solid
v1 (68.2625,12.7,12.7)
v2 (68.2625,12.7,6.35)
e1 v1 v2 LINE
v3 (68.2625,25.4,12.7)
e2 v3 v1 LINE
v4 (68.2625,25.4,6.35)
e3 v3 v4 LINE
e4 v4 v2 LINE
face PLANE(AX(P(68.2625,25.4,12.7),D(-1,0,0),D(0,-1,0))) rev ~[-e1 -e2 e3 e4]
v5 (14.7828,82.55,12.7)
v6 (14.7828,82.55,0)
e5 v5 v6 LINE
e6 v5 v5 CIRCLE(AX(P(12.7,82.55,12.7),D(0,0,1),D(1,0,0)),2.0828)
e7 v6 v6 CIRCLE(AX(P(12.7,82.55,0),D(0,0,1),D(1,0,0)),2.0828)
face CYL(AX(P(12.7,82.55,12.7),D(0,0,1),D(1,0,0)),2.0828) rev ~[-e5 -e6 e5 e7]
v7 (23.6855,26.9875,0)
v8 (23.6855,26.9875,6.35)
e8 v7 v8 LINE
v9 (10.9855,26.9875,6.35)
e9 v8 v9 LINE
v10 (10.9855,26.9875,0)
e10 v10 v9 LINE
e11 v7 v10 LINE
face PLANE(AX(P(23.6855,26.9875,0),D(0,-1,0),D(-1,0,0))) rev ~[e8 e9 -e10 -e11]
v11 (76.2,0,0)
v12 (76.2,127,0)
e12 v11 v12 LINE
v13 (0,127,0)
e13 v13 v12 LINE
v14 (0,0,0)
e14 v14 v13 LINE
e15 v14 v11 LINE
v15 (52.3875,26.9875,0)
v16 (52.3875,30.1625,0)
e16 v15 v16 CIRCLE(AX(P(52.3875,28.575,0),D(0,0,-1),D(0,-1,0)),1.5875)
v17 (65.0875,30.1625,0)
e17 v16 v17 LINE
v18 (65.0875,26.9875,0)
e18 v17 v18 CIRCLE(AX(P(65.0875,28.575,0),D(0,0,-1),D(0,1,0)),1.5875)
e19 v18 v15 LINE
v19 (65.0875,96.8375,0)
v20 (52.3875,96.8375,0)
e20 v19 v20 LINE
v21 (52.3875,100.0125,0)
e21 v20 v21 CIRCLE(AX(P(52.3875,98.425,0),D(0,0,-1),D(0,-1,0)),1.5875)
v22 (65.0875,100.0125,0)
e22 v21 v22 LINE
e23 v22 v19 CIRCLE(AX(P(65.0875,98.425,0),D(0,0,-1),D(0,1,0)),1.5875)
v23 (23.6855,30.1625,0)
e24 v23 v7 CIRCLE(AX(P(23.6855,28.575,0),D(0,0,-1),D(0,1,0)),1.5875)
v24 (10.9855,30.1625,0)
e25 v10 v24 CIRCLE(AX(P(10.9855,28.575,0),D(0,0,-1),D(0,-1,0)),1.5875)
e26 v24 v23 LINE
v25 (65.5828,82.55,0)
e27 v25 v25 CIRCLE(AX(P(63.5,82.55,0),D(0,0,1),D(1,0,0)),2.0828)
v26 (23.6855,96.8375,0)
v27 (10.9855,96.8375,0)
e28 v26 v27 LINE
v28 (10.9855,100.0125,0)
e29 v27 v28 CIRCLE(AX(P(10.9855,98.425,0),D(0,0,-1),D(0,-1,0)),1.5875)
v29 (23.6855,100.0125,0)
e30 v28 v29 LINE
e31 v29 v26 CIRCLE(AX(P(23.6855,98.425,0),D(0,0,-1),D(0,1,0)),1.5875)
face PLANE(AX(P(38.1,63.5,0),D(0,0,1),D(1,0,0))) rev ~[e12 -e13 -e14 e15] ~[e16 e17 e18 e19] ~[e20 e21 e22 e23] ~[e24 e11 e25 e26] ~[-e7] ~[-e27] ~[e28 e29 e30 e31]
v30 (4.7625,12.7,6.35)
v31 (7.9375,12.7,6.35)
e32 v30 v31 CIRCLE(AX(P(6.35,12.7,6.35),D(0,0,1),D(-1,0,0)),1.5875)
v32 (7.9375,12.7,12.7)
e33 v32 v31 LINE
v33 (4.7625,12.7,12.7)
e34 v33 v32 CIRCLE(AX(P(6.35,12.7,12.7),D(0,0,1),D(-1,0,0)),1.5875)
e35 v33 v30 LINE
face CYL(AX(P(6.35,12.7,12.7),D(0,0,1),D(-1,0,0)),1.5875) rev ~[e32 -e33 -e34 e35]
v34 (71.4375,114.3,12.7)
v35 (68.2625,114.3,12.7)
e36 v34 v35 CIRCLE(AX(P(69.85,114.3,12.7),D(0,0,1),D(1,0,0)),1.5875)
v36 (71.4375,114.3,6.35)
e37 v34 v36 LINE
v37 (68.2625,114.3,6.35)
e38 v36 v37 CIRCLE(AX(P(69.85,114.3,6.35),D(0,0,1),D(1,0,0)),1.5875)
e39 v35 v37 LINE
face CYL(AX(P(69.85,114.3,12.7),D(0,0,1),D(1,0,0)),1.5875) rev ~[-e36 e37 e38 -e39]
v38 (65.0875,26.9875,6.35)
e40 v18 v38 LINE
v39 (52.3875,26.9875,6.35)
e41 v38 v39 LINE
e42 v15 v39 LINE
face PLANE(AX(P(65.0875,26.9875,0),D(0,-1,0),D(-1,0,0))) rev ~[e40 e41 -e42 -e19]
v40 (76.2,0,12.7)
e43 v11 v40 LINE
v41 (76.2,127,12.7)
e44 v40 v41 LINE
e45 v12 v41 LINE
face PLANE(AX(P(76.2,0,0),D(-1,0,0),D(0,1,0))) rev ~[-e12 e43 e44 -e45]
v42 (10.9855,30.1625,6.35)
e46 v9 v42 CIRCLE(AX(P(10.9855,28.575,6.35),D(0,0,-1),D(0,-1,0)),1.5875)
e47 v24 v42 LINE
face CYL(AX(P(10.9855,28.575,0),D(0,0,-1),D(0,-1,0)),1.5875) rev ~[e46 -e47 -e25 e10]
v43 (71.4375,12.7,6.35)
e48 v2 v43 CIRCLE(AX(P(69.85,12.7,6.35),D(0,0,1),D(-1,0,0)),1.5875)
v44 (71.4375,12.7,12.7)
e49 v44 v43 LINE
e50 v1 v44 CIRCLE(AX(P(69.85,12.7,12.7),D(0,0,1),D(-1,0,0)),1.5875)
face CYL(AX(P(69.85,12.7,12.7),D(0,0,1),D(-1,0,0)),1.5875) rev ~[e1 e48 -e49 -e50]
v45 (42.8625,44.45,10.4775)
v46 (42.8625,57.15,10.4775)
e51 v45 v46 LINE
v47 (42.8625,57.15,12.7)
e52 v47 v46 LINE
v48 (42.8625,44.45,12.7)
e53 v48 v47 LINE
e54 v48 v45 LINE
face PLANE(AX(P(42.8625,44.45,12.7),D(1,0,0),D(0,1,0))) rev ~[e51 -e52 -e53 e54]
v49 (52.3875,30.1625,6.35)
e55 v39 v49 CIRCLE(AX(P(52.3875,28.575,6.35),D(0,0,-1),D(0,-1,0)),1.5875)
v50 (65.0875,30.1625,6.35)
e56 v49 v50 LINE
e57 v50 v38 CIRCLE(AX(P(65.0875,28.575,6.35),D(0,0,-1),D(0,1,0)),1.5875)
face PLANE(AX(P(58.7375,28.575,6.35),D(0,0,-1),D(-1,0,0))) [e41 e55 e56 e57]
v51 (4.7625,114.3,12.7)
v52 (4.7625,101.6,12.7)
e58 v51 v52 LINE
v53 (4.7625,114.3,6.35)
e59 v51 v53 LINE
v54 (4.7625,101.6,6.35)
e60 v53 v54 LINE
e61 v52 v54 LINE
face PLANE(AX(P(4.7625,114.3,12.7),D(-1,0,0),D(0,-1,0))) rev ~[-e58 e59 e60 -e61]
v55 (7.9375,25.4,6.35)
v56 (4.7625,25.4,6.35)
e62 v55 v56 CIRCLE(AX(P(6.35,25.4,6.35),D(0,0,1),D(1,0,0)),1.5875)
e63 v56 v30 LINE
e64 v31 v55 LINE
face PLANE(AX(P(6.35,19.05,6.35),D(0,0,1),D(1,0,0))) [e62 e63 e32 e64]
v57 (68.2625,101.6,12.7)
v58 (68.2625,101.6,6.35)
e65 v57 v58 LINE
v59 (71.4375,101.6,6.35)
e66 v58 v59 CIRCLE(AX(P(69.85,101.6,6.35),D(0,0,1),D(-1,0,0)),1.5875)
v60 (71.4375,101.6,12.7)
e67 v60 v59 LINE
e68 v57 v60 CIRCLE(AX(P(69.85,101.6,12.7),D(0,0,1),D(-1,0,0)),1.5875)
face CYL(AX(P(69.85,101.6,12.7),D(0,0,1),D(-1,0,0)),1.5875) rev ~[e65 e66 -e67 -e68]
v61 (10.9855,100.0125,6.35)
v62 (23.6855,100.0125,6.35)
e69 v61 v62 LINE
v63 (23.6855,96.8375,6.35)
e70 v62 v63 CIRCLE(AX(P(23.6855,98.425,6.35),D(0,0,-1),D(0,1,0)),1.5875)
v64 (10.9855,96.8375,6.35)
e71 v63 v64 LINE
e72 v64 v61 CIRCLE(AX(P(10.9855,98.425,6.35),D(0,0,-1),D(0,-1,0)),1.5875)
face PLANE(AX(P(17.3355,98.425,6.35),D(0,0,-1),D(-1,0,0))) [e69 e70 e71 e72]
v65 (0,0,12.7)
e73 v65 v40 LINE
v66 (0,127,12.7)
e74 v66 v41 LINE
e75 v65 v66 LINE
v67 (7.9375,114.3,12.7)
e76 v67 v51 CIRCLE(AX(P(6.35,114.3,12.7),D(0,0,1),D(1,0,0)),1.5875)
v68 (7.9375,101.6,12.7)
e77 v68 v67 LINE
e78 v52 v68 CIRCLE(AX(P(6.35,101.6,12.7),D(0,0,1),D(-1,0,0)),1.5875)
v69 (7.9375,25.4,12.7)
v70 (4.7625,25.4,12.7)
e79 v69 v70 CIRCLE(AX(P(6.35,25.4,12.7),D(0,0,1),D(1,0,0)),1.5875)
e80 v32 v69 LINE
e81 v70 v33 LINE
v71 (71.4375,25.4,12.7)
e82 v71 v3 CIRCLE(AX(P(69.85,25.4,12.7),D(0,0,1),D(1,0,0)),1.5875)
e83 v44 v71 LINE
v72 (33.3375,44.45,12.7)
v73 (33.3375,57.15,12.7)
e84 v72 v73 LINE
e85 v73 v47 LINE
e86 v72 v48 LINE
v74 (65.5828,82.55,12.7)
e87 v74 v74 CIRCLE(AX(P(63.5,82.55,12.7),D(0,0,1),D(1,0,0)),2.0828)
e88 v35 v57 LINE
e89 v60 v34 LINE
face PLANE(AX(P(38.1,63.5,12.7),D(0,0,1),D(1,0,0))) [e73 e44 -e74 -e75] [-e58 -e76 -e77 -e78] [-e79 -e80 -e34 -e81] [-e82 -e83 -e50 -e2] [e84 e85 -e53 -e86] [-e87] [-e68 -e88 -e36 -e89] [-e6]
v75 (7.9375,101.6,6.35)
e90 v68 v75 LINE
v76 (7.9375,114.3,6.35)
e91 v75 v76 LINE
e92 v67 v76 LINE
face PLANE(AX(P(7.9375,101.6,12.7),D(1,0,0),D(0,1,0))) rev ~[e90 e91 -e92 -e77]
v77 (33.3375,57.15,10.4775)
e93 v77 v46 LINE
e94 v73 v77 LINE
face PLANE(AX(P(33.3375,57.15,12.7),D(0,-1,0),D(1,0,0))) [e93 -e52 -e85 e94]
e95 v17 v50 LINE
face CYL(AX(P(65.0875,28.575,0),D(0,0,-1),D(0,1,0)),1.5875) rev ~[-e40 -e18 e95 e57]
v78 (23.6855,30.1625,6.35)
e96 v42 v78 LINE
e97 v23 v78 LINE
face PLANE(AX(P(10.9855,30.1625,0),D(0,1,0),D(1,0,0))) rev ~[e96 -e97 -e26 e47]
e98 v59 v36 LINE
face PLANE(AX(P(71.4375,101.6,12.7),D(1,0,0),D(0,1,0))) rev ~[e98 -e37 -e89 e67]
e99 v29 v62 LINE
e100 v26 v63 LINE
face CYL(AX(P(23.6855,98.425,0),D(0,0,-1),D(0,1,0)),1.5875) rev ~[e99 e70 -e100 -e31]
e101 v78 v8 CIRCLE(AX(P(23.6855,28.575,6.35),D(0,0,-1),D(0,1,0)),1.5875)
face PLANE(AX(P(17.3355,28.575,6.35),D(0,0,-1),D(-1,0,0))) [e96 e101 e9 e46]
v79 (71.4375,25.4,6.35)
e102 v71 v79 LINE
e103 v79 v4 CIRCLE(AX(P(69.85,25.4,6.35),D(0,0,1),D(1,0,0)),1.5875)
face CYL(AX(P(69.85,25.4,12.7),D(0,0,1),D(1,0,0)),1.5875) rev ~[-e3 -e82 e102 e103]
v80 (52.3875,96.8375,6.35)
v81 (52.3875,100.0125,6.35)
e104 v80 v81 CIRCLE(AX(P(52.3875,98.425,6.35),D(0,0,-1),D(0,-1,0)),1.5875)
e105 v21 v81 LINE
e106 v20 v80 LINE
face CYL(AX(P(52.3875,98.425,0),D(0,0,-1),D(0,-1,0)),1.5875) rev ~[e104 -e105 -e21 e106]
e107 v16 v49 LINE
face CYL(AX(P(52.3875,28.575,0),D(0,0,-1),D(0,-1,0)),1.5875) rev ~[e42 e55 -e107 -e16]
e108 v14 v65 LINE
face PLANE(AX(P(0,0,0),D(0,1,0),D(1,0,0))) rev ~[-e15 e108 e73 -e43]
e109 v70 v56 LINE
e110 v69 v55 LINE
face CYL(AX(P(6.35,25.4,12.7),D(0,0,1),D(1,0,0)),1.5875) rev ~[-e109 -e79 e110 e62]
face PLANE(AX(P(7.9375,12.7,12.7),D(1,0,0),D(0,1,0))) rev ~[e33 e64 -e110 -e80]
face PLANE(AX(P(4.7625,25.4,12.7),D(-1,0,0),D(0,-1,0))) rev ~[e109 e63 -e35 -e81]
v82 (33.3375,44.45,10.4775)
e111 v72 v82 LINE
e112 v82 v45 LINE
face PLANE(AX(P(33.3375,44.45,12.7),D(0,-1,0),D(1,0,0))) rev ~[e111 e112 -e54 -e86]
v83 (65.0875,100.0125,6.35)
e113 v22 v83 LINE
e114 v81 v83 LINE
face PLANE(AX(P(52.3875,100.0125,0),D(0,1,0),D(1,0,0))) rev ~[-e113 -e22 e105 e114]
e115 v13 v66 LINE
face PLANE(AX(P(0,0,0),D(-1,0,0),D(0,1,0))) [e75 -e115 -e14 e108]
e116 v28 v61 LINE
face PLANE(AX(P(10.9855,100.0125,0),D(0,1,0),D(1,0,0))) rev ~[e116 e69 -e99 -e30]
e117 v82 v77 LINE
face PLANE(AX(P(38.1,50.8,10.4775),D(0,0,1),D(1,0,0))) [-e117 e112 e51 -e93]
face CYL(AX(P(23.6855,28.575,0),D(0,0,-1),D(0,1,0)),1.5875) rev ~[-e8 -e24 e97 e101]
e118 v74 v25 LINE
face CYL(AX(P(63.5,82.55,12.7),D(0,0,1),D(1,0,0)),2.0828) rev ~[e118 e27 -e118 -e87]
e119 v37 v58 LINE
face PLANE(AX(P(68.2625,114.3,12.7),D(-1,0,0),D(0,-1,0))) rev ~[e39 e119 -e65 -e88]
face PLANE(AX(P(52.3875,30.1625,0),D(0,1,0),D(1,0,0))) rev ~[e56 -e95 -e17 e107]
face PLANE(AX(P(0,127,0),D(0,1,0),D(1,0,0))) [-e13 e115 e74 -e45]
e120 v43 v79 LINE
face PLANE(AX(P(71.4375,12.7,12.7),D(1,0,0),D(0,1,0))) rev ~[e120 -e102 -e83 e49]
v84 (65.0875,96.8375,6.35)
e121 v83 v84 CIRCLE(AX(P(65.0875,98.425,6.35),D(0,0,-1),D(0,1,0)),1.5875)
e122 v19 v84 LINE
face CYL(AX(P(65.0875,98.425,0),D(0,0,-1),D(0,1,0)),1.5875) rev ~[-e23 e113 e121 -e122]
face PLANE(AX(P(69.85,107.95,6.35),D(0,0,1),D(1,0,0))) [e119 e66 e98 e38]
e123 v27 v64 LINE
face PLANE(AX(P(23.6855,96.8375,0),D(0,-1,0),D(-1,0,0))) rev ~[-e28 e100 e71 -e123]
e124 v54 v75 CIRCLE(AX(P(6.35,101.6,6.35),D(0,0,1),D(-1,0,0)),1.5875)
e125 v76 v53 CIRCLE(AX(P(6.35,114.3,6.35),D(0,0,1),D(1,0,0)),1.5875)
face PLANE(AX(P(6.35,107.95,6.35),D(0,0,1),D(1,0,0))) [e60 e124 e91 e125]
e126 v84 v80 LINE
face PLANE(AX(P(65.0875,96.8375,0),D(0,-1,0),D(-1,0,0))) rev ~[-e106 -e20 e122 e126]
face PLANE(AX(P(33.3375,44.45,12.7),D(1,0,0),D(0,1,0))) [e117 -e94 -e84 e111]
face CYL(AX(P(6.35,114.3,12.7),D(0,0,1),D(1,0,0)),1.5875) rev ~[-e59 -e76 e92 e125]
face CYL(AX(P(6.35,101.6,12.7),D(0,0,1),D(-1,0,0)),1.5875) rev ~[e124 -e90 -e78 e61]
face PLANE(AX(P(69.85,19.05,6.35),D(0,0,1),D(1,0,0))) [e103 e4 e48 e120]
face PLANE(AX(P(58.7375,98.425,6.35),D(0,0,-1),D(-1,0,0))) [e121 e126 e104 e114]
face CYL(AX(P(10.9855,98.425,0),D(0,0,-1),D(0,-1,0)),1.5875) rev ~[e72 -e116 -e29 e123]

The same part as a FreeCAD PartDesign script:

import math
import FreeCAD as App
import Part
import Sketcher
Q = App.Units.Quantity


def add_polygon(sketch, points):
    """Adds a closed chain of lines whose ends are joined by coincident constraints."""
    first, n = sketch.GeometryCount, len(points)
    for a, b in zip(points, points[1:] + points[:1]):
        sketch.addGeometry(Part.LineSegment(App.Vector(*a, 0), App.Vector(*b, 0)), False)
    for i in range(n):
        sketch.addConstraint(Sketcher.Constraint("Coincident", first + i, 2, first + (i + 1) % n, 1))

doc = App.newDocument("Part")
body = doc.addObject("PartDesign::Body", "Body")

sketch1 = body.newObject("Sketcher::SketchObject", "Sketch")
sketch1.AttachmentSupport = (doc.getObject("XY_Plane"), [""])
sketch1.MapMode = "FlatFace"
add_polygon(sketch1, [(0, 127), (0, 0), (76, 0), (76, 127)])
sketch1.addConstraint([
    Sketcher.Constraint("Vertical", 0),
    Sketcher.Constraint("Horizontal", 1),
    Sketcher.Constraint("Vertical", 2),
    Sketcher.Constraint("Horizontal", 3),
    Sketcher.Constraint("Coincident", 0, 2, -1, 1),
    Sketcher.Constraint("DistanceX", 1, 1, 1, 2, Q("3 in")),
    Sketcher.Constraint("DistanceY", 0, 2, 0, 1, Q("5 in")),
])
pad1 = body.newObject("PartDesign::Pad", "Pad")
pad1.Profile = sketch1
pad1.Length = Q("0.5 in")

sketch2 = body.newObject("Sketcher::SketchObject", "Sketch001")
sketch2.AttachmentSupport = (doc.getObject("XY_Plane"), [""])
sketch2.MapMode = "FlatFace"
sketch2.AttachmentOffset = App.Placement(App.Vector(0, 0, 0.5 * 25.4), App.Rotation())
sketch2.addGeometry([
    Part.LineSegment(App.Vector(71.4, 12.7, 0), App.Vector(71.4, 25.4, 0)),
    Part.ArcOfCircle(Part.Circle(App.Vector(69.8, 25.4, 0), App.Vector(0, 0, 1), 1.6), math.radians(0), math.radians(180)),
    Part.LineSegment(App.Vector(68.3, 25.4, 0), App.Vector(68.3, 12.7, 0)),
    Part.ArcOfCircle(Part.Circle(App.Vector(69.8, 12.7, 0), App.Vector(0, 0, 1), 1.6), math.radians(180), math.radians(360)),
    Part.LineSegment(App.Vector(7.9, 12.7, 0), App.Vector(7.9, 25.4, 0)),
    Part.ArcOfCircle(Part.Circle(App.Vector(6.3, 25.4, 0), App.Vector(0, 0, 1), 1.6), math.radians(0), math.radians(180)),
    Part.LineSegment(App.Vector(4.8, 25.4, 0), App.Vector(4.8, 12.7, 0)),
    Part.ArcOfCircle(Part.Circle(App.Vector(6.3, 12.7, 0), App.Vector(0, 0, 1), 1.6), math.radians(180), math.radians(360)),
    Part.LineSegment(App.Vector(7.9, 101.6, 0), App.Vector(7.9, 114.3, 0)),
    Part.ArcOfCircle(Part.Circle(App.Vector(6.3, 114.3, 0), App.Vector(0, 0, 1), 1.6), math.radians(0), math.radians(180)),
    Part.LineSegment(App.Vector(4.8, 114.3, 0), App.Vector(4.8, 101.6, 0)),
    Part.ArcOfCircle(Part.Circle(App.Vector(6.3, 101.6, 0), App.Vector(0, 0, 1), 1.6), math.radians(180), math.radians(360)),
    Part.LineSegment(App.Vector(71.4, 101.6, 0), App.Vector(71.4, 114.3, 0)),
    Part.ArcOfCircle(Part.Circle(App.Vector(69.8, 114.3, 0), App.Vector(0, 0, 1), 1.6), math.radians(0), math.radians(180)),
    Part.LineSegment(App.Vector(68.3, 114.3, 0), App.Vector(68.3, 101.6, 0)),
    Part.ArcOfCircle(Part.Circle(App.Vector(69.8, 101.6, 0), App.Vector(0, 0, 1), 1.6), math.radians(180), math.radians(360)),
], False)
sketch2.addConstraint([
    Sketcher.Constraint("Tangent", 0, 2, 1, 1),
    Sketcher.Constraint("Tangent", 1, 2, 2, 1),
    Sketcher.Constraint("Tangent", 2, 2, 3, 1),
    Sketcher.Constraint("Tangent", 3, 2, 0, 1),
    Sketcher.Constraint("Tangent", 4, 2, 5, 1),
    Sketcher.Constraint("Tangent", 5, 2, 6, 1),
    Sketcher.Constraint("Tangent", 6, 2, 7, 1),
    Sketcher.Constraint("Tangent", 7, 2, 4, 1),
    Sketcher.Constraint("Tangent", 8, 2, 9, 1),
    Sketcher.Constraint("Tangent", 9, 2, 10, 1),
    Sketcher.Constraint("Tangent", 10, 2, 11, 1),
    Sketcher.Constraint("Tangent", 11, 2, 8, 1),
    Sketcher.Constraint("Tangent", 12, 2, 13, 1),
    Sketcher.Constraint("Tangent", 13, 2, 14, 1),
    Sketcher.Constraint("Tangent", 14, 2, 15, 1),
    Sketcher.Constraint("Tangent", 15, 2, 12, 1),
    Sketcher.Constraint("Vertical", 0),
    Sketcher.Constraint("Vertical", 2),
    Sketcher.Constraint("Vertical", 4),
    Sketcher.Constraint("Vertical", 6),
    Sketcher.Constraint("Vertical", 8),
    Sketcher.Constraint("Vertical", 10),
    Sketcher.Constraint("Vertical", 12),
    Sketcher.Constraint("Vertical", 14),
    Sketcher.Constraint("Equal", 3, 5),
    Sketcher.Constraint("Equal", 7, 9),
    Sketcher.Constraint("Equal", 11, 13),
    Sketcher.Constraint("Horizontal", 1, 3, 5, 3),
    Sketcher.Constraint("Horizontal", 3, 3, 7, 3),
    Sketcher.Constraint("Horizontal", 9, 3, 13, 3),
    Sketcher.Constraint("Horizontal", 11, 3, 15, 3),
    Sketcher.Constraint("Vertical", 7, 3, 9, 3),
    Sketcher.Constraint("Vertical", 3, 3, 13, 3),
    Sketcher.Constraint("Equal", 6, 8),
    Sketcher.Constraint("DistanceY", 0, 1, 0, 2, Q("0.5 in")),
    Sketcher.Constraint("DistanceY", -1, 1, 1, 3, Q("1 in")),
    Sketcher.Constraint("DistanceY", -1, 1, 11, 3, Q("4 in")),
    Sketcher.Constraint("Radius", 1, Q("0.0625 in")),
    Sketcher.Constraint("DistanceX", 5, 3, 1, 3, Q("2.5 in")),
    Sketcher.Constraint("DistanceX", -1, 1, 1, 3, Q("2.75 in")),
])
pocket1 = body.newObject("PartDesign::Pocket", "Pocket")
pocket1.Profile = sketch2
pocket1.Length = Q("0.25 in")

sketch3 = body.newObject("Sketcher::SketchObject", "Sketch002")
sketch3.AttachmentSupport = (doc.getObject("XY_Plane"), [""])
sketch3.MapMode = "FlatFace"
sketch3.addGeometry([
    Part.LineSegment(App.Vector(23.7, 96.8, 0), App.Vector(11, 96.8, 0)),
    Part.ArcOfCircle(Part.Circle(App.Vector(11, 98.4, 0), App.Vector(0, 0, 1), 1.6), math.radians(90), math.radians(270)),
    Part.LineSegment(App.Vector(11, 100, 0), App.Vector(23.7, 100, 0)),
    Part.ArcOfCircle(Part.Circle(App.Vector(23.7, 98.4, 0), App.Vector(0, 0, 1), 1.6), math.radians(-90), math.radians(90)),
    Part.LineSegment(App.Vector(65.1, 96.8, 0), App.Vector(52.4, 96.8, 0)),
    Part.ArcOfCircle(Part.Circle(App.Vector(52.4, 98.4, 0), App.Vector(0, 0, 1), 1.6), math.radians(90), math.radians(270)),
    Part.LineSegment(App.Vector(52.4, 100, 0), App.Vector(65.1, 100, 0)),
    Part.ArcOfCircle(Part.Circle(App.Vector(65.1, 98.4, 0), App.Vector(0, 0, 1), 1.6), math.radians(-90), math.radians(90)),
    Part.LineSegment(App.Vector(65.1, 27, 0), App.Vector(52.4, 27, 0)),
    Part.ArcOfCircle(Part.Circle(App.Vector(52.4, 28.6, 0), App.Vector(0, 0, 1), 1.6), math.radians(90), math.radians(270)),
    Part.LineSegment(App.Vector(52.4, 30.2, 0), App.Vector(65.1, 30.2, 0)),
    Part.ArcOfCircle(Part.Circle(App.Vector(65.1, 28.6, 0), App.Vector(0, 0, 1), 1.6), math.radians(-90), math.radians(90)),
    Part.LineSegment(App.Vector(23.7, 27, 0), App.Vector(11, 27, 0)),
    Part.ArcOfCircle(Part.Circle(App.Vector(11, 28.6, 0), App.Vector(0, 0, 1), 1.6), math.radians(90), math.radians(270)),
    Part.LineSegment(App.Vector(11, 30.2, 0), App.Vector(23.7, 30.2, 0)),
    Part.ArcOfCircle(Part.Circle(App.Vector(23.7, 28.6, 0), App.Vector(0, 0, 1), 1.6), math.radians(-90), math.radians(90)),
], False)
sketch3.addConstraint([
    Sketcher.Constraint("Tangent", 0, 2, 1, 2),
    Sketcher.Constraint("Tangent", 1, 1, 2, 1),
    Sketcher.Constraint("Tangent", 2, 2, 3, 2),
    Sketcher.Constraint("Tangent", 3, 1, 0, 1),
    Sketcher.Constraint("Tangent", 4, 2, 5, 2),
    Sketcher.Constraint("Tangent", 5, 1, 6, 1),
    Sketcher.Constraint("Tangent", 6, 2, 7, 2),
    Sketcher.Constraint("Tangent", 7, 1, 4, 1),
    Sketcher.Constraint("Tangent", 8, 2, 9, 2),
    Sketcher.Constraint("Tangent", 9, 1, 10, 1),
    Sketcher.Constraint("Tangent", 10, 2, 11, 2),
    Sketcher.Constraint("Tangent", 11, 1, 8, 1),
    Sketcher.Constraint("Tangent", 12, 2, 13, 2),
    Sketcher.Constraint("Tangent", 13, 1, 14, 1),
    Sketcher.Constraint("Tangent", 14, 2, 15, 2),
    Sketcher.Constraint("Tangent", 15, 1, 12, 1),
    Sketcher.Constraint("Horizontal", 0),
    Sketcher.Constraint("Horizontal", 2),
    Sketcher.Constraint("Horizontal", 4),
    Sketcher.Constraint("Horizontal", 6),
    Sketcher.Constraint("Horizontal", 8),
    Sketcher.Constraint("Horizontal", 10),
    Sketcher.Constraint("Horizontal", 12),
    Sketcher.Constraint("Horizontal", 14),
    Sketcher.Constraint("Equal", 3, 5),
    Sketcher.Constraint("Equal", 7, 9),
    Sketcher.Constraint("Equal", 11, 13),
    Sketcher.Constraint("Horizontal", 3, 3, 5, 3),
    Sketcher.Constraint("Horizontal", 11, 3, 13, 3),
    Sketcher.Constraint("Vertical", 5, 3, 9, 3),
    Sketcher.Constraint("Vertical", 7, 3, 11, 3),
    Sketcher.Constraint("Vertical", 1, 3, 13, 3),
    Sketcher.Constraint("Vertical", 3, 3, 15, 3),
    Sketcher.Constraint("Equal", 2, 4),
    Sketcher.Constraint("DistanceX", 0, 2, 0, 1, Q("0.5 in")),
    Sketcher.Constraint("Radius", 1, Q("0.0625 in")),
    Sketcher.Constraint("DistanceX", 3, 3, 5, 3, Q("1.13 in")),
    Sketcher.Constraint("DistanceY", 9, 3, 5, 3, Q("2.75 in")),
    Sketcher.Constraint("DistanceY", -1, 1, 1, 3, Q("3.875 in")),
    Sketcher.Constraint("DistanceX", -1, 1, 5, 3, Q("2.0625 in")),
])
pocket2 = body.newObject("PartDesign::Pocket", "Pocket001")
pocket2.Profile = sketch3
pocket2.Length = Q("0.25 in")
pocket2.Reversed = True

sketch4 = body.newObject("Sketcher::SketchObject", "Sketch003")
sketch4.AttachmentSupport = (doc.getObject("XY_Plane"), [""])
sketch4.MapMode = "FlatFace"
sketch4.AttachmentOffset = App.Placement(App.Vector(0, 0, 0.5 * 25.4), App.Rotation())
add_polygon(sketch4, [(33, 57), (33, 44), (43, 44), (43, 57)])
sketch4.addConstraint([
    Sketcher.Constraint("Vertical", 0),
    Sketcher.Constraint("Horizontal", 1),
    Sketcher.Constraint("Vertical", 2),
    Sketcher.Constraint("Horizontal", 3),
    Sketcher.Constraint("DistanceY", 0, 2, 0, 1, Q("0.5 in")),
    Sketcher.Constraint("DistanceX", 1, 1, 1, 2, Q("0.375 in")),
    Sketcher.Constraint("DistanceY", -1, 1, 0, 2, Q("1.75 in")),
    Sketcher.Constraint("DistanceX", -1, 1, 0, 2, Q("1.3125 in")),
])
pocket3 = body.newObject("PartDesign::Pocket", "Pocket002")
pocket3.Profile = sketch4
pocket3.Length = Q("0.0875 in")

sketch5 = body.newObject("Sketcher::SketchObject", "Sketch004")
sketch5.AttachmentSupport = (doc.getObject("XY_Plane"), [""])
sketch5.MapMode = "FlatFace"
sketch5.AttachmentOffset = App.Placement(App.Vector(0, 0, 0.5 * 25.4), App.Rotation())
sketch5.addGeometry([
    Part.Circle(App.Vector(12.7, 82.5, 0), App.Vector(0, 0, 1), 2.1),
    Part.Circle(App.Vector(63.5, 82.5, 0), App.Vector(0, 0, 1), 2.1),
], False)
sketch5.addConstraint([
    Sketcher.Constraint("Equal", 0, 1),
    Sketcher.Constraint("Horizontal", 0, 3, 1, 3),
    Sketcher.Constraint("Diameter", 0, Q("0.164 in")),
    Sketcher.Constraint("DistanceX", 0, 3, 1, 3, Q("2 in")),
    Sketcher.Constraint("DistanceX", -1, 1, 0, 3, Q("0.5 in")),
    Sketcher.Constraint("DistanceY", -1, 1, 0, 3, Q("3.25 in")),
])
pocket4 = body.newObject("PartDesign::Pocket", "Pocket003")
pocket4.Profile = sketch5
pocket4.Length = Q("1 in")

doc.recompute()
